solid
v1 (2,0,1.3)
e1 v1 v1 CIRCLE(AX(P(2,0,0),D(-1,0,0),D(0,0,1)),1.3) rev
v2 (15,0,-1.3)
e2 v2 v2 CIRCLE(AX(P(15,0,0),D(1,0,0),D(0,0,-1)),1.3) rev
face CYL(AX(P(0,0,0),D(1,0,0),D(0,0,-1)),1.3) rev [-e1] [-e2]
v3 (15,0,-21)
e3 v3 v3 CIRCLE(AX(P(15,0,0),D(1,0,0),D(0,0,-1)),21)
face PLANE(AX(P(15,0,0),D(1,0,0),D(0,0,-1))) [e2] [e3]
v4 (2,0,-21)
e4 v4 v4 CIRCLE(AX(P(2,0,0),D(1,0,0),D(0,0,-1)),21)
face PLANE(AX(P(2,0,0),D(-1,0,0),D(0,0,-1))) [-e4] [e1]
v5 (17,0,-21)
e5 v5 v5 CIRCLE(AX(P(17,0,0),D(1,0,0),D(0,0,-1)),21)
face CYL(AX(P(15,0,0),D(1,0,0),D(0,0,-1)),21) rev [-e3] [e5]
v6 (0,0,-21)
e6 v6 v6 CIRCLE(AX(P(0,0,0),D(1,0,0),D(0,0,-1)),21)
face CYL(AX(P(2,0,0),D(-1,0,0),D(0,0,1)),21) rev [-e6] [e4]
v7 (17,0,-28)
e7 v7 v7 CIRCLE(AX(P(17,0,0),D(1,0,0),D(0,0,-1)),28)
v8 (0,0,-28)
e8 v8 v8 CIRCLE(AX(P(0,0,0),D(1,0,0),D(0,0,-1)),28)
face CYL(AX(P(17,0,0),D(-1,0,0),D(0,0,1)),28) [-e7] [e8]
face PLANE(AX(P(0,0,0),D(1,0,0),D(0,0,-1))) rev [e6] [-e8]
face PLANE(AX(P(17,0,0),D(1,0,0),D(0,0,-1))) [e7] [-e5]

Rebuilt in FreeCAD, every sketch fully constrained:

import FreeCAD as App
import Part
import Sketcher
Q = App.Units.Quantity

doc = App.newDocument("Part")
params = doc.addObject("Spreadsheet::Sheet", "Params")
for row, (alias, value) in enumerate([
    ("sketch1_diameter", "56 mm"),
    ("pad1_length", "17 mm"),
    ("sketch2_diameter", "2.6 mm"),
    ("pocket1_length", "17 mm"),
    ("sketch3_diameter", "42 mm"),
    ("pocket2_length", "2 mm"),
], start=1):
    params.set(f"A{row}", alias)
    params.set(f"B{row}", "=" + value)
    params.setAlias(f"B{row}", alias)

body = doc.addObject("PartDesign::Body", "Body")

# Sketch on YZ plane
sketch1 = body.newObject("Sketcher::SketchObject", "Sketch")
sketch1.AttachmentSupport = (doc.getObject("YZ_Plane"), [""])
sketch1.MapMode = "FlatFace"
sketch1.addGeometry(Part.Circle(App.Vector(0, 0, 0), App.Vector(0, 0, 1), 28), False)
sketch1.addConstraint(Sketcher.Constraint("Coincident", 0, 3, -1, 1))
sketch1.addConstraint(Sketcher.Constraint("Diameter", 0, Q("56 mm")))
sketch1.setExpression("Constraints[1]", "Params.sketch1_diameter")
pad1 = body.newObject("PartDesign::Pad", "Pad")
pad1.Profile = sketch1
pad1.setExpression("Length", "Params.pad1_length")

# Sketch on YZ plane
sketch2 = body.newObject("Sketcher::SketchObject", "Sketch001")
sketch2.AttachmentSupport = (doc.getObject("YZ_Plane"), [""])
sketch2.MapMode = "FlatFace"
sketch2.AttachmentOffset = App.Placement(App.Vector(0, 0, 17), App.Rotation())
sketch2.addGeometry(Part.Circle(App.Vector(0, 0, 0), App.Vector(0, 0, 1), 1.3), False)
sketch2.addConstraint(Sketcher.Constraint("Coincident", 0, 3, -1, 1))
sketch2.addConstraint(Sketcher.Constraint("Diameter", 0, Q("2.6 mm")))
sketch2.setExpression("Constraints[1]", "Params.sketch2_diameter")
pocket1 = body.newObject("PartDesign::Pocket", "Pocket")
pocket1.Profile = sketch2
pocket1.setExpression("Length", "Params.pocket1_length")

# Sketch on YZ plane
sketch3 = body.newObject("Sketcher::SketchObject", "Sketch002")
sketch3.AttachmentSupport = (doc.getObject("YZ_Plane"), [""])
sketch3.MapMode = "FlatFace"
sketch3.AttachmentOffset = App.Placement(App.Vector(0, 0, 17), App.Rotation())
sketch3.addGeometry(Part.Circle(App.Vector(0, 0, 0), App.Vector(0, 0, 1), 21), False)
sketch3.addConstraint(Sketcher.Constraint("Coincident", 0, 3, -1, 1))
sketch3.addConstraint(Sketcher.Constraint("Diameter", 0, Q("42 mm")))
sketch3.setExpression("Constraints[1]", "Params.sketch3_diameter")
pocket2 = body.newObject("PartDesign::Pocket", "Pocket001")
pocket2.Profile = sketch3
pocket2.setExpression("Length", "Params.pocket2_length")
doc.recompute()

datumplane = body.newObject("PartDesign::Plane", "DatumPlane")
datumplane.AttachmentSupport = (doc.getObject("YZ_Plane"), [""])
datumplane.MapMode = "FlatFace"
datumplane.AttachmentOffset = App.Placement(App.Vector(0, 0, 8.5), App.Rotation())
mirrored = body.newObject("PartDesign::Mirrored", "Mirrored")
mirrored.Originals = [pocket2]
mirrored.MirrorPlane = (datumplane, [""])
body.Tip = mirrored

doc.recompute()
